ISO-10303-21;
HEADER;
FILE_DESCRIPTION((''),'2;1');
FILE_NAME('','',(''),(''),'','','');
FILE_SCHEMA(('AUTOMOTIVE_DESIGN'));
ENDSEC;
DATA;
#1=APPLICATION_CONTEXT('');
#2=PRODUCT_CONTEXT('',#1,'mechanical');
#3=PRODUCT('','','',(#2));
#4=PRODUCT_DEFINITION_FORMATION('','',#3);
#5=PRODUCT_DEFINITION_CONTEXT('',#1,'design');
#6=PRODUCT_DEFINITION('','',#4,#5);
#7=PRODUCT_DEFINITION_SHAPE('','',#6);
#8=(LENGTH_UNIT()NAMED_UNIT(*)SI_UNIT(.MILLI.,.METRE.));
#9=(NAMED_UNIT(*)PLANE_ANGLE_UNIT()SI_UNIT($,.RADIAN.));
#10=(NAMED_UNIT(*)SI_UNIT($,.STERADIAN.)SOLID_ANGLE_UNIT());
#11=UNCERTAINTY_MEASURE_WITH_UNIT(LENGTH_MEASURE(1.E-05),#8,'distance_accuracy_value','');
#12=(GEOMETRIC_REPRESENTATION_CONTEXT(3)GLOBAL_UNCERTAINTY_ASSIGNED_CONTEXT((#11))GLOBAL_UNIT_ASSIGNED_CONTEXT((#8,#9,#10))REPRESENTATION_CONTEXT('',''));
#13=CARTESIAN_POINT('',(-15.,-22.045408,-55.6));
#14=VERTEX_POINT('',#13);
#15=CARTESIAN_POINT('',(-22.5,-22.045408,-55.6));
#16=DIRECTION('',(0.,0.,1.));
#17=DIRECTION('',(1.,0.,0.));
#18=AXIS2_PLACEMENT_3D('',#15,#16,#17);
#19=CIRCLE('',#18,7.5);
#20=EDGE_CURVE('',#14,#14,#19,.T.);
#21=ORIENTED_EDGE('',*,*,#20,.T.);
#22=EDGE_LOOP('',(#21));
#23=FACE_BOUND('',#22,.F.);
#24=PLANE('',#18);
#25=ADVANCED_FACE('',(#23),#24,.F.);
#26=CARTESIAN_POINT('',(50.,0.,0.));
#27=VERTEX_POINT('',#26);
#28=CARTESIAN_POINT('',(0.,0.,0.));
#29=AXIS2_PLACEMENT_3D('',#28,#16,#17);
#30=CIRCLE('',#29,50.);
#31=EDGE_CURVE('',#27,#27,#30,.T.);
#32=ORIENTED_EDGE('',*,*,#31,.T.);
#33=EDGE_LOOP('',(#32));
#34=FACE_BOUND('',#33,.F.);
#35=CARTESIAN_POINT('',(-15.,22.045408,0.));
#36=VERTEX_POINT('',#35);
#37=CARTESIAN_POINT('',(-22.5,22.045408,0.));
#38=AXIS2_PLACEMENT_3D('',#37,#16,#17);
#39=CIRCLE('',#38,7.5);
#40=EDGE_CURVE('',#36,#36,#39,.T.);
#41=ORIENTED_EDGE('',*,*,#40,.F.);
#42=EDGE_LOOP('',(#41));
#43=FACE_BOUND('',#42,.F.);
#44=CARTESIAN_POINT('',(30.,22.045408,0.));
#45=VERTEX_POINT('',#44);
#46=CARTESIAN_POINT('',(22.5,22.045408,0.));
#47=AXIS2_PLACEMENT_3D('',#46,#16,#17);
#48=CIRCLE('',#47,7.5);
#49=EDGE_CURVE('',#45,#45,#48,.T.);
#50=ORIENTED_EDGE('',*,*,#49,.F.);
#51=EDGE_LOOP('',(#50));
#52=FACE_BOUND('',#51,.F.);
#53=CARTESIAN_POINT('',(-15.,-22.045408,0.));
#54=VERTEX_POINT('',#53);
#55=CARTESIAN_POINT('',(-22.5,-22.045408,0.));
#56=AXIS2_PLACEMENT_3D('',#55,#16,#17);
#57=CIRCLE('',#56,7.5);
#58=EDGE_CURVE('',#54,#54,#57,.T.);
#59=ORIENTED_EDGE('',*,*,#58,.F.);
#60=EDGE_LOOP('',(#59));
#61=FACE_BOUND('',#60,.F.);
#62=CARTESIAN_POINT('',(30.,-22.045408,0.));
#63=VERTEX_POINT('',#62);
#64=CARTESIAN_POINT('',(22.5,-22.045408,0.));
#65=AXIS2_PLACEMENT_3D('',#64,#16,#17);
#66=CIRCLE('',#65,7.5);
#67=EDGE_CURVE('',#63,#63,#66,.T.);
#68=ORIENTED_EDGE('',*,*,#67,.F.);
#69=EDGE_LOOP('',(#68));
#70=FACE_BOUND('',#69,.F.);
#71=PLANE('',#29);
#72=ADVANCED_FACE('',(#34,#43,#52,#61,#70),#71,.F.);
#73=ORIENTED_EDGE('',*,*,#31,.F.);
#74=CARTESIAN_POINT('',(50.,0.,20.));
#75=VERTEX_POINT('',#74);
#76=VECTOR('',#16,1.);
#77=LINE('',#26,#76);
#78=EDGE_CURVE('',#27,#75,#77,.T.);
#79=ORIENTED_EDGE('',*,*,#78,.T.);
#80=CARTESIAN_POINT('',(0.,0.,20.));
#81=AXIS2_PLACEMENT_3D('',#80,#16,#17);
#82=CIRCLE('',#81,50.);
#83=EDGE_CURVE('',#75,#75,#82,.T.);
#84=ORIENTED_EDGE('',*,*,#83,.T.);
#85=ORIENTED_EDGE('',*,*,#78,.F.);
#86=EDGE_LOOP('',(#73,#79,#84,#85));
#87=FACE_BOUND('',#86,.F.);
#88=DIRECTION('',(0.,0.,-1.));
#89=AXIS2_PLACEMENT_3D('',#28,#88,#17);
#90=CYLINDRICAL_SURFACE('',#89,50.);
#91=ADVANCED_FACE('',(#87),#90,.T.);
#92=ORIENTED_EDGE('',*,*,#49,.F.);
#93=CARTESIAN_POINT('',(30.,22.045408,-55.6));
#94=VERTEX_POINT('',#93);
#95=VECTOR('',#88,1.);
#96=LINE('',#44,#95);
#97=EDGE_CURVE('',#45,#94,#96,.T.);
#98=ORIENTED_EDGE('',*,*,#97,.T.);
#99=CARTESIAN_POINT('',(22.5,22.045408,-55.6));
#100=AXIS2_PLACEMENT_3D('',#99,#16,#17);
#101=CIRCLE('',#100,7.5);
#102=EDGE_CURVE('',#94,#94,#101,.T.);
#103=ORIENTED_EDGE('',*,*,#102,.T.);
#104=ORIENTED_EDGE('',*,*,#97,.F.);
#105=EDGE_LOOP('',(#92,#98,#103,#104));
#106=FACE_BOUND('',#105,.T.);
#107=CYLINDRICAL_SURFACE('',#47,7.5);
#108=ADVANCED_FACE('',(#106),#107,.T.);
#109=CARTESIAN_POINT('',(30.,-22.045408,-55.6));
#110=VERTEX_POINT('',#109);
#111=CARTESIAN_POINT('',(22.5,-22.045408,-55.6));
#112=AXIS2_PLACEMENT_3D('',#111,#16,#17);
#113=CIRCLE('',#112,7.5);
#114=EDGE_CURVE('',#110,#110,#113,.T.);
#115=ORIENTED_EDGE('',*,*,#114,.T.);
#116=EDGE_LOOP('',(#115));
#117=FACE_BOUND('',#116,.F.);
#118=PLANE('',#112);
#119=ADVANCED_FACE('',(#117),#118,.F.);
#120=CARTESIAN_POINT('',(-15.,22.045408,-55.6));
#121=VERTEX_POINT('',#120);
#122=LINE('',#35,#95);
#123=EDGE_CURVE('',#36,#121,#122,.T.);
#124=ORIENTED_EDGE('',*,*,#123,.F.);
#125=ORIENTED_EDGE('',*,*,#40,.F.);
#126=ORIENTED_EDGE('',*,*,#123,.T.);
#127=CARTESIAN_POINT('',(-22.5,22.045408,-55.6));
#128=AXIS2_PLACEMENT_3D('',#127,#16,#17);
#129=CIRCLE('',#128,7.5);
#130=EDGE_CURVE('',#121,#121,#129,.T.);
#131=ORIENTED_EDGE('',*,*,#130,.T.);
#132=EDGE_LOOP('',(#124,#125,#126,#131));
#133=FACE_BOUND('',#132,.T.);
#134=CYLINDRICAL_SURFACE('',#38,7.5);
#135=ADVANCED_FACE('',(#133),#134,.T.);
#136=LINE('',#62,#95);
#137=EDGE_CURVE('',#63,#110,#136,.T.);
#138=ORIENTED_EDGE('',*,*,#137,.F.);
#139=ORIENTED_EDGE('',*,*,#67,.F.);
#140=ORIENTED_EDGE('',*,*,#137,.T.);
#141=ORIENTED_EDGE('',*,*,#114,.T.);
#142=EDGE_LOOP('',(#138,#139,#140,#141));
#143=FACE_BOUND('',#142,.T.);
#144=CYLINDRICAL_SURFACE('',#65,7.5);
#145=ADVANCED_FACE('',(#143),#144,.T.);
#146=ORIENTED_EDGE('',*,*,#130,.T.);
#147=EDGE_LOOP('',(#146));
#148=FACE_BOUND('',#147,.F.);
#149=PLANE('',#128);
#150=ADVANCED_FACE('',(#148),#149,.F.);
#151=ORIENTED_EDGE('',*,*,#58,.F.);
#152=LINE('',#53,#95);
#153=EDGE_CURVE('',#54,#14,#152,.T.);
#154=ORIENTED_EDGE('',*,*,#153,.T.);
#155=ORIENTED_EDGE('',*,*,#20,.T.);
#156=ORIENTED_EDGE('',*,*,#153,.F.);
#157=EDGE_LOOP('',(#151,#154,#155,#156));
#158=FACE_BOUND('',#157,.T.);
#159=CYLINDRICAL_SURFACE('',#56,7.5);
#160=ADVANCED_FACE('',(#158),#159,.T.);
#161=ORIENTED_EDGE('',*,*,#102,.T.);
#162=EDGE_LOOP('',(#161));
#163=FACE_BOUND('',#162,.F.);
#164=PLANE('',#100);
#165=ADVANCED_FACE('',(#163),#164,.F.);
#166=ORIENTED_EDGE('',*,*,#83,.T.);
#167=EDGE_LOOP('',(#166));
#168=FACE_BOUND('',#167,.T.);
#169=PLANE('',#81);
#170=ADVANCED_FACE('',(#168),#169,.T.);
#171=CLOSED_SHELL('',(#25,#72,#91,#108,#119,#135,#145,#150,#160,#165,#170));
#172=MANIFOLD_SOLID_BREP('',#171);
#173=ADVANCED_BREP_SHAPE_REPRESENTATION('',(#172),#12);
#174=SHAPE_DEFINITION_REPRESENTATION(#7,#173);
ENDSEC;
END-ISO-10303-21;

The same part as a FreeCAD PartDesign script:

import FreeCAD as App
import Part
import Sketcher
from FreeCAD import Vector
Q = App.Units.Quantity

doc = App.newDocument("Part")
body = doc.addObject("PartDesign::Body", "Body")

sketch1 = body.newObject("Sketcher::SketchObject", "Sketch")
sketch1.AttachmentSupport = (doc.getObject("XY_Plane"), [""])
sketch1.MapMode = "FlatFace"
sketch1.addGeometry(Part.Circle(Vector(0, 0, 0), Vector(0, 0, 1), 50), False)
sketch1.addConstraint([
    Sketcher.Constraint("Coincident", 0, 3, -1, 1),
    Sketcher.Constraint("Diameter", 0, Q("100 mm")),
])
pad1 = body.newObject("PartDesign::Pad", "Pad")
pad1.Profile = sketch1
pad1.Length = 20

sketch2 = body.newObject("Sketcher::SketchObject", "Sketch001")
sketch2.AttachmentSupport = (doc.getObject("XY_Plane"), [""])
sketch2.MapMode = "FlatFace"
sketch2.addGeometry([
    Part.Circle(Vector(22.5, 22.045408, 0), Vector(0, 0, 1), 7.5),
    Part.Circle(Vector(-22.5, 22.045408, 0), Vector(0, 0, 1), 7.5),
    Part.Circle(Vector(-22.5, -22.045408, 0), Vector(0, 0, 1), 7.5),
    Part.Circle(Vector(22.5, -22.045408, 0), Vector(0, 0, 1), 7.5),
], False)
sketch2.addConstraint([
    Sketcher.Constraint("Equal", 0, 1),
    Sketcher.Constraint("Equal", 1, 2),
    Sketcher.Constraint("Equal", 2, 3),
    Sketcher.Constraint("Symmetric", 0, 3, 2, 3, -1, 1),
    Sketcher.Constraint("Symmetric", 1, 3, 3, 3, -1, 1),
    Sketcher.Constraint("Symmetric", 0, 3, 1, 3, -2),
    Sketcher.Constraint("Diameter", 0, Q("15 mm")),
    Sketcher.Constraint("DistanceX", 1, 3, 0, 3, Q("45 mm")),
    Sketcher.Constraint("DistanceY", -1, 1, 0, 3, Q("22.045408 mm")),
])
pad2 = body.newObject("PartDesign::Pad", "Pad001")
pad2.Profile = sketch2
pad2.Length = 55.6
pad2.Reversed = True

doc.recompute()
